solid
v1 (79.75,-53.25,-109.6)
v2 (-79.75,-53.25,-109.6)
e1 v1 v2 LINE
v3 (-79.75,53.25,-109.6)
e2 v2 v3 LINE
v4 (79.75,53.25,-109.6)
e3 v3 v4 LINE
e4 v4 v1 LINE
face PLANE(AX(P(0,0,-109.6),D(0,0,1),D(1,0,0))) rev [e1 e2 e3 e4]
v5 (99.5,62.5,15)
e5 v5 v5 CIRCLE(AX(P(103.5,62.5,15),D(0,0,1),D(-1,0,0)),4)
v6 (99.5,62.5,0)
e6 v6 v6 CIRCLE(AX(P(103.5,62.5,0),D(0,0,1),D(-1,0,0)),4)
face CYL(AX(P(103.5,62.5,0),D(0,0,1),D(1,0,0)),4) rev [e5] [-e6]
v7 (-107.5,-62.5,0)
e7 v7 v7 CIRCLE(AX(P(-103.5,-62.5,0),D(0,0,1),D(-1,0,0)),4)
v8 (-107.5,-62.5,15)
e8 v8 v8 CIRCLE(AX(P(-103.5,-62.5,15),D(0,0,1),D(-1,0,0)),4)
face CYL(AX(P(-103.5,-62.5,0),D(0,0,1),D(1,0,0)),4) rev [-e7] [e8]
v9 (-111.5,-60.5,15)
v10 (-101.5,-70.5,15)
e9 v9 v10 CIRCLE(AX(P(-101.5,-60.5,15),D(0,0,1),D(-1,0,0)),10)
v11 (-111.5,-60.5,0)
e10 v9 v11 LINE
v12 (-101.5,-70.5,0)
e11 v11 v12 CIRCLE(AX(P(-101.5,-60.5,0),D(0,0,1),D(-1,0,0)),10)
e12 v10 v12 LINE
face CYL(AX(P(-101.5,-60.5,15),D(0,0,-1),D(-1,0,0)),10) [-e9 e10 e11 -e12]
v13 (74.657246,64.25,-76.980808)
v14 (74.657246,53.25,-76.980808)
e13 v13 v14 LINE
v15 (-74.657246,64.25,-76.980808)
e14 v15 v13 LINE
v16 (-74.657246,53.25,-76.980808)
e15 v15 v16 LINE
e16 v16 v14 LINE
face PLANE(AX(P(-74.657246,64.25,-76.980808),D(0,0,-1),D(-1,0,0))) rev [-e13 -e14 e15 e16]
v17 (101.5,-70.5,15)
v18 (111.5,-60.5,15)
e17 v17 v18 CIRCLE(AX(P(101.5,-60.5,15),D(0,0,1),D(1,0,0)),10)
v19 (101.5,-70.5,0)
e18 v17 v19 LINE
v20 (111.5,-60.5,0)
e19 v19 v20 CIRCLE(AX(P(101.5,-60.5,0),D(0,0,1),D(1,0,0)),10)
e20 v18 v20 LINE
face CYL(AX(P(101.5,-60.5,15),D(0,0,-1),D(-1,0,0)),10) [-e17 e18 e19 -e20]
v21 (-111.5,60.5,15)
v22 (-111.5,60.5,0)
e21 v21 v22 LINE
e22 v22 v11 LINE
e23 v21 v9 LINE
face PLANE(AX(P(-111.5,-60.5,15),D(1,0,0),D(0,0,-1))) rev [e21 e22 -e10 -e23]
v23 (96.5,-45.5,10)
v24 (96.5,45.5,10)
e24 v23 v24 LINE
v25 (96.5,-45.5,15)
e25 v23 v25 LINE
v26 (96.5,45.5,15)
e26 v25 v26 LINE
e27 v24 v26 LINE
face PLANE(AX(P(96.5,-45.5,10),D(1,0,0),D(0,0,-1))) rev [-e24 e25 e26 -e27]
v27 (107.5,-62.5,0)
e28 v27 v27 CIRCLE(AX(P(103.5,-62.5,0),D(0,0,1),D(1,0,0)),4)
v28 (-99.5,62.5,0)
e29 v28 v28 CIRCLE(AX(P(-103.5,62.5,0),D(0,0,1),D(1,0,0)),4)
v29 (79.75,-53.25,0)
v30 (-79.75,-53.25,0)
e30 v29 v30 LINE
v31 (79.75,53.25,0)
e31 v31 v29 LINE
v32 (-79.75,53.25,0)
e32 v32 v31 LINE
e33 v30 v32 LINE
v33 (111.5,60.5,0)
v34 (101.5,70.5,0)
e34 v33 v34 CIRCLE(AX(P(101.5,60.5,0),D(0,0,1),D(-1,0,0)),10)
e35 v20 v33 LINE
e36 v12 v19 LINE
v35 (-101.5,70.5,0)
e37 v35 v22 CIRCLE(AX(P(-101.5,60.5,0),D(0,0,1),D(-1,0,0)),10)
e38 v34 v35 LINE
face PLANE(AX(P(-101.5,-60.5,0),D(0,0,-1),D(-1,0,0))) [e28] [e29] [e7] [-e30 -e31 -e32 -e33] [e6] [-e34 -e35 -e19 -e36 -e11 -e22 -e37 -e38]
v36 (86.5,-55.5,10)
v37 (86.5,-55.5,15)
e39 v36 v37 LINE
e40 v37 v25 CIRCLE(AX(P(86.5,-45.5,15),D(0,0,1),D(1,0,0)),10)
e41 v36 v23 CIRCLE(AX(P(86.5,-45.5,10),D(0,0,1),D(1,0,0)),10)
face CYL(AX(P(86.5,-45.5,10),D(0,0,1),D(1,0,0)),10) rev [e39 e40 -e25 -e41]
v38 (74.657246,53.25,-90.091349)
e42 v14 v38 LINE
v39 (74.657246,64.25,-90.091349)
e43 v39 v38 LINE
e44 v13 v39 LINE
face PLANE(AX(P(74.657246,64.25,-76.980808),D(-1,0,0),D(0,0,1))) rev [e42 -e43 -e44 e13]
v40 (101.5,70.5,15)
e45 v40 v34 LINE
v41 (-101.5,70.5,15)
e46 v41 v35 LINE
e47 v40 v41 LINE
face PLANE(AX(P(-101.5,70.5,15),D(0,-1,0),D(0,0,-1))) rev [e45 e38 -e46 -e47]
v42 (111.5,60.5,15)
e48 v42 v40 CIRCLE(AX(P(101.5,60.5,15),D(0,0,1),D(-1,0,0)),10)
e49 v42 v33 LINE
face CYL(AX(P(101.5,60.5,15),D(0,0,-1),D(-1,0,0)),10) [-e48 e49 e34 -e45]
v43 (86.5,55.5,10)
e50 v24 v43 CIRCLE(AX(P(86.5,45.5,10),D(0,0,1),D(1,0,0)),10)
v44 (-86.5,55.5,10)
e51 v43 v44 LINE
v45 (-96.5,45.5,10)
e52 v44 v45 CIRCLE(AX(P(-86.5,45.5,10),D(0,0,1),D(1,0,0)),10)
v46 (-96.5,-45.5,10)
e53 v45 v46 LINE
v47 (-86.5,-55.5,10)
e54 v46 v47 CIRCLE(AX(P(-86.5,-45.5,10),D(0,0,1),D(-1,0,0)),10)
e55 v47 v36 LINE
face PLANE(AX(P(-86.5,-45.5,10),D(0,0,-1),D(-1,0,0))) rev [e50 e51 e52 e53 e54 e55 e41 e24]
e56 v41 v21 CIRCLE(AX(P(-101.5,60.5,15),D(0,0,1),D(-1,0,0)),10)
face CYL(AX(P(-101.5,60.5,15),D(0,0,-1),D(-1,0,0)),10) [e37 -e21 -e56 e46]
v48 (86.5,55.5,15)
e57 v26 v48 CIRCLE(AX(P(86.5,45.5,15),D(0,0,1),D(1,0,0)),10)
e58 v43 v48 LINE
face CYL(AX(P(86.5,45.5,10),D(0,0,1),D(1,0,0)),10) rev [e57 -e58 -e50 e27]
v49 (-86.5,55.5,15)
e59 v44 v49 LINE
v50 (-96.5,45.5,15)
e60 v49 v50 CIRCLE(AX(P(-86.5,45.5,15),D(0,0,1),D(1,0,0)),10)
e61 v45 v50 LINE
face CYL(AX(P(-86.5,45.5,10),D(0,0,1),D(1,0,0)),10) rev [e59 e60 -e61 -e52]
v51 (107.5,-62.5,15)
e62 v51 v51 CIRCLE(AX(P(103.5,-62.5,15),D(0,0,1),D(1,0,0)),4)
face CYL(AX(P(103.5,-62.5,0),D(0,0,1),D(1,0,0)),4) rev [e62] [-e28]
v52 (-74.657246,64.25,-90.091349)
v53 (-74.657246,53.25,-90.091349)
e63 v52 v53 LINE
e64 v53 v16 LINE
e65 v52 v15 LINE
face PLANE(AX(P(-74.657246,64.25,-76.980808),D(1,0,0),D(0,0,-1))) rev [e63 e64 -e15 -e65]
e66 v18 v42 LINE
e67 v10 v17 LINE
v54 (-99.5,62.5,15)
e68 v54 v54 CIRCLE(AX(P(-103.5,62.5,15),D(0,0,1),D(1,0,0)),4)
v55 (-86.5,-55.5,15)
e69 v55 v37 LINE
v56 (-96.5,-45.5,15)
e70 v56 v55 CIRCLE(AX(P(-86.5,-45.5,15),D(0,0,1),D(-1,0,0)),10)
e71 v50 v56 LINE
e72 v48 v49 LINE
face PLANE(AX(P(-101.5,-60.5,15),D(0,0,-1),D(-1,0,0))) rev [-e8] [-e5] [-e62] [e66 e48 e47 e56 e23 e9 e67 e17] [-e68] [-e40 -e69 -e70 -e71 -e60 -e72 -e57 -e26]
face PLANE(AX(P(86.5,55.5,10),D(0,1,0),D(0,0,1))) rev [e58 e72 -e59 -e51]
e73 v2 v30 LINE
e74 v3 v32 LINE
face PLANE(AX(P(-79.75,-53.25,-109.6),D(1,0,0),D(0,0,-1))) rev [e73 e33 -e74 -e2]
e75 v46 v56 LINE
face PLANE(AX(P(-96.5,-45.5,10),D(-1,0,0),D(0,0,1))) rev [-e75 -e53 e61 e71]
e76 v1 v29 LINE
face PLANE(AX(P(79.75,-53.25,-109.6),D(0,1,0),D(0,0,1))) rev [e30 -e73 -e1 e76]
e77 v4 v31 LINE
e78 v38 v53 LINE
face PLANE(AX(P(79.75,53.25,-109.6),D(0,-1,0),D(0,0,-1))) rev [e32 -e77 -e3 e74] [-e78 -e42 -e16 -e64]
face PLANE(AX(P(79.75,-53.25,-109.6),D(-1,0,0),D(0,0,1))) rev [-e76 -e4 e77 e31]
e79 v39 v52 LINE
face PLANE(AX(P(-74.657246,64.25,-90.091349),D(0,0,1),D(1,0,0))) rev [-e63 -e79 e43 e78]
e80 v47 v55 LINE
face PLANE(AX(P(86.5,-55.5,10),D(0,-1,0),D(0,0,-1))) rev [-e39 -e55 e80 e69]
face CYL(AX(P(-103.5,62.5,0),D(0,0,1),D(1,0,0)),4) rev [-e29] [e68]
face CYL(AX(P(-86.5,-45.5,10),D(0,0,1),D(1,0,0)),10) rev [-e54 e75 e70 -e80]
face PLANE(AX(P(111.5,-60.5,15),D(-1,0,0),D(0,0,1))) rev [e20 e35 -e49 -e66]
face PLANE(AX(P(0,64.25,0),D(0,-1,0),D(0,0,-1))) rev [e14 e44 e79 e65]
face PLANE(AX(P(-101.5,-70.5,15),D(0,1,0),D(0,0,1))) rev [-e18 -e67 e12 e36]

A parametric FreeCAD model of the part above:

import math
import FreeCAD as App
import Part
import Sketcher

V = App.Vector


def add_polygon(sketch, points):
    """Adds a closed chain of lines whose ends are joined by coincident constraints."""
    first, n = sketch.GeometryCount, len(points)
    for a, b in zip(points, points[1:] + points[:1]):
        sketch.addGeometry(Part.LineSegment(App.Vector(*a, 0), App.Vector(*b, 0)), False)
    for i in range(n):
        sketch.addConstraint(Sketcher.Constraint("Coincident", first + i, 2, first + (i + 1) % n, 1))

doc = App.newDocument("Part")
body = doc.addObject("PartDesign::Body", "Body")

sketch1 = doc.addObject("Sketcher::SketchObject", "Sketch")
body.addObject(sketch1)
sketch1.AttachmentSupport = (doc.XY_Plane, [""])
sketch1.MapMode = "FlatFace"
sketch1.addGeometry(Part.LineSegment(V(-101.5, -70.5, 0), V(101.5, -70.5, 0)), False)
sketch1.addGeometry(Part.ArcOfCircle(Part.Circle(V(101.5, -60.5, 0), V(0, 0, 1), 10), math.radians(-90), math.radians(0)), False)
sketch1.addGeometry(Part.LineSegment(V(111.5, -60.5, 0), V(111.5, 60.5, 0)), False)
sketch1.addGeometry(Part.ArcOfCircle(Part.Circle(V(101.5, 60.5, 0), V(0, 0, 1), 10), math.radians(0), math.radians(90)), False)
sketch1.addGeometry(Part.LineSegment(V(101.5, 70.5, 0), V(-101.5, 70.5, 0)), False)
sketch1.addGeometry(Part.ArcOfCircle(Part.Circle(V(-101.5, 60.5, 0), V(0, 0, 1), 10), math.radians(90), math.radians(180)), False)
sketch1.addGeometry(Part.LineSegment(V(-111.5, 60.5, 0), V(-111.5, -60.5, 0)), False)
sketch1.addGeometry(Part.ArcOfCircle(Part.Circle(V(-101.5, -60.5, 0), V(0, 0, 1), 10), math.radians(180), math.radians(270)), False)
sketch1.addConstraint(Sketcher.Constraint("Tangent", 0, 2, 1, 1))
sketch1.addConstraint(Sketcher.Constraint("Tangent", 1, 2, 2, 1))
sketch1.addConstraint(Sketcher.Constraint("Tangent", 2, 2, 3, 1))
sketch1.addConstraint(Sketcher.Constraint("Tangent", 3, 2, 4, 1))
sketch1.addConstraint(Sketcher.Constraint("Tangent", 4, 2, 5, 1))
sketch1.addConstraint(Sketcher.Constraint("Tangent", 5, 2, 6, 1))
sketch1.addConstraint(Sketcher.Constraint("Tangent", 6, 2, 7, 1))
sketch1.addConstraint(Sketcher.Constraint("Tangent", 7, 2, 0, 1))
sketch1.addConstraint(Sketcher.Constraint("Horizontal", 0))
sketch1.addConstraint(Sketcher.Constraint("Vertical", 2))
sketch1.addConstraint(Sketcher.Constraint("Horizontal", 4))
sketch1.addConstraint(Sketcher.Constraint("Vertical", 6))
sketch1.addConstraint(Sketcher.Constraint("Equal", 1, 3))
sketch1.addConstraint(Sketcher.Constraint("Equal", 3, 5))
sketch1.addConstraint(Sketcher.Constraint("Equal", 5, 7))
sketch1.addConstraint(Sketcher.Constraint("Symmetric", 1, 3, 5, 3, -1, 1))
sketch1.addConstraint(Sketcher.Constraint("Radius", 1, 10.0))
sketch1.addConstraint(Sketcher.Constraint("DistanceX", 0, 1, 0, 2, 203.0))
sketch1.addConstraint(Sketcher.Constraint("DistanceY", 2, 1, 2, 2, 121.0))
pad1 = doc.addObject("PartDesign::Pad", "Pad")
body.addObject(pad1)
pad1.Profile = sketch1
pad1.Length = 15

sketch2 = doc.addObject("Sketcher::SketchObject", "Sketch001")
body.addObject(sketch2)
sketch2.AttachmentSupport = (doc.XY_Plane, [""])
sketch2.MapMode = "FlatFace"
add_polygon(sketch2, [(79.75, 53.25), (79.75, -53.25), (-79.75, -53.25), (-79.75, 53.25)])
sketch2.addConstraint(Sketcher.Constraint("Vertical", 0))
sketch2.addConstraint(Sketcher.Constraint("Horizontal", 1))
sketch2.addConstraint(Sketcher.Constraint("Vertical", 2))
sketch2.addConstraint(Sketcher.Constraint("Horizontal", 3))
sketch2.addConstraint(Sketcher.Constraint("Symmetric", 0, 2, 2, 2, -1, 1))
sketch2.addConstraint(Sketcher.Constraint("DistanceX", 1, 2, 1, 1, 159.5))
sketch2.addConstraint(Sketcher.Constraint("DistanceY", 0, 2, 0, 1, 106.5))
pad2 = doc.addObject("PartDesign::Pad", "Pad001")
body.addObject(pad2)
pad2.Profile = sketch2
pad2.Length = 109.6
pad2.Reversed = True

sketch3 = doc.addObject("Sketcher::SketchObject", "Sketch002")
body.addObject(sketch3)
sketch3.AttachmentSupport = (doc.XY_Plane, [""])
sketch3.MapMode = "FlatFace"
sketch3.AttachmentOffset = App.Placement(V(0, 0, 15), App.Rotation())
sketch3.addGeometry(Part.LineSegment(V(-86.5, -55.5, 0), V(86.5, -55.5, 0)), False)
sketch3.addGeometry(Part.ArcOfCircle(Part.Circle(V(86.5, -45.5, 0), V(0, 0, 1), 10), math.radians(-90), math.radians(0)), False)
sketch3.addGeometry(Part.LineSegment(V(96.5, -45.5, 0), V(96.5, 45.5, 0)), False)
sketch3.addGeometry(Part.ArcOfCircle(Part.Circle(V(86.5, 45.5, 0), V(0, 0, 1), 10), math.radians(0), math.radians(90)), False)
sketch3.addGeometry(Part.LineSegment(V(86.5, 55.5, 0), V(-86.5, 55.5, 0)), False)
sketch3.addGeometry(Part.ArcOfCircle(Part.Circle(V(-86.5, 45.5, 0), V(0, 0, 1), 10), math.radians(90), math.radians(180)), False)
sketch3.addGeometry(Part.LineSegment(V(-96.5, 45.5, 0), V(-96.5, -45.5, 0)), False)
sketch3.addGeometry(Part.ArcOfCircle(Part.Circle(V(-86.5, -45.5, 0), V(0, 0, 1), 10), math.radians(180), math.radians(270)), False)
sketch3.addConstraint(Sketcher.Constraint("Tangent", 0, 2, 1, 1))
sketch3.addConstraint(Sketcher.Constraint("Tangent", 1, 2, 2, 1))
sketch3.addConstraint(Sketcher.Constraint("Tangent", 2, 2, 3, 1))
sketch3.addConstraint(Sketcher.Constraint("Tangent", 3, 2, 4, 1))
sketch3.addConstraint(Sketcher.Constraint("Tangent", 4, 2, 5, 1))
sketch3.addConstraint(Sketcher.Constraint("Tangent", 5, 2, 6, 1))
sketch3.addConstraint(Sketcher.Constraint("Tangent", 6, 2, 7, 1))
sketch3.addConstraint(Sketcher.Constraint("Tangent", 7, 2, 0, 1))
sketch3.addConstraint(Sketcher.Constraint("Horizontal", 0))
sketch3.addConstraint(Sketcher.Constraint("Vertical", 2))
sketch3.addConstraint(Sketcher.Constraint("Horizontal", 4))
sketch3.addConstraint(Sketcher.Constraint("Vertical", 6))
sketch3.addConstraint(Sketcher.Constraint("Equal", 1, 3))
sketch3.addConstraint(Sketcher.Constraint("Equal", 3, 5))
sketch3.addConstraint(Sketcher.Constraint("Equal", 5, 7))
sketch3.addConstraint(Sketcher.Constraint("Symmetric", 1, 3, 5, 3, -1, 1))
sketch3.addConstraint(Sketcher.Constraint("Radius", 1, 10.0))
sketch3.addConstraint(Sketcher.Constraint("DistanceX", 0, 1, 0, 2, 173.0))
sketch3.addConstraint(Sketcher.Constraint("DistanceY", 2, 1, 2, 2, 91.0))
pocket1 = doc.addObject("PartDesign::Pocket", "Pocket")
body.addObject(pocket1)
pocket1.Profile = sketch3
pocket1.Length = 5

sketch4 = doc.addObject("Sketcher::SketchObject", "Sketch003")
body.addObject(sketch4)
sketch4.AttachmentSupport = (doc.XY_Plane, [""])
sketch4.MapMode = "FlatFace"
sketch4.AttachmentOffset = App.Placement(V(0, 0, 15), App.Rotation())
sketch4.addGeometry(Part.Circle(V(-103.5, 62.5, 0), V(0, 0, 1), 4), False)
sketch4.addGeometry(Part.Circle(V(103.5, 62.5, 0), V(0, 0, 1), 4), False)
sketch4.addGeometry(Part.Circle(V(103.5, -62.5, 0), V(0, 0, 1), 4), False)
sketch4.addGeometry(Part.Circle(V(-103.5, -62.5, 0), V(0, 0, 1), 4), False)
sketch4.addConstraint(Sketcher.Constraint("Equal", 0, 1))
sketch4.addConstraint(Sketcher.Constraint("Equal", 1, 2))
sketch4.addConstraint(Sketcher.Constraint("Equal", 2, 3))
sketch4.addConstraint(Sketcher.Constraint("Symmetric", 0, 3, 2, 3, -1, 1))
sketch4.addConstraint(Sketcher.Constraint("Symmetric", 1, 3, 3, 3, -1, 1))
sketch4.addConstraint(Sketcher.Constraint("Symmetric", 0, 3, 1, 3, -2))
sketch4.addConstraint(Sketcher.Constraint("Diameter", 0, 8.0))
sketch4.addConstraint(Sketcher.Constraint("DistanceX", 0, 3, 1, 3, 207.0))
sketch4.addConstraint(Sketcher.Constraint("DistanceY", 2, 3, 1, 3, 125.0))
pocket2 = doc.addObject("PartDesign::Pocket", "Pocket001")
body.addObject(pocket2)
pocket2.Profile = sketch4
pocket2.Length = 15

sketch5 = doc.addObject("Sketcher::SketchObject", "Sketch004")
body.addObject(sketch5)
sketch5.AttachmentSupport = (doc.XZ_Plane, [""])
sketch5.MapMode = "FlatFace"
sketch5.AttachmentOffset = App.Placement(V(0, 0, -53.25), App.Rotation())
add_polygon(sketch5, [(-74.657246, -90.091349), (-74.657246, -76.980808), (74.657246, -76.980808), (74.657246, -90.091349)])
sketch5.addConstraint(Sketcher.Constraint("Vertical", 0))
sketch5.addConstraint(Sketcher.Constraint("Horizontal", 1))
sketch5.addConstraint(Sketcher.Constraint("Vertical", 2))
sketch5.addConstraint(Sketcher.Constraint("Horizontal", 3))
sketch5.addConstraint(Sketcher.Constraint("DistanceY", 0, 1, 0, 2, 13.110541))
sketch5.addConstraint(Sketcher.Constraint("DistanceX", 1, 1, 1, 2, 149.314493))
sketch5.addConstraint(Sketcher.Constraint("DistanceY", 2, 2, -1, 1, 90.091349))
sketch5.addConstraint(Sketcher.Constraint("DistanceX", 0, 2, -1, 1, 74.657246))
pad3 = doc.addObject("PartDesign::Pad", "Pad002")
body.addObject(pad3)
pad3.Profile = sketch5
pad3.Length = 11
pad3.Reversed = True

doc.recompute()
